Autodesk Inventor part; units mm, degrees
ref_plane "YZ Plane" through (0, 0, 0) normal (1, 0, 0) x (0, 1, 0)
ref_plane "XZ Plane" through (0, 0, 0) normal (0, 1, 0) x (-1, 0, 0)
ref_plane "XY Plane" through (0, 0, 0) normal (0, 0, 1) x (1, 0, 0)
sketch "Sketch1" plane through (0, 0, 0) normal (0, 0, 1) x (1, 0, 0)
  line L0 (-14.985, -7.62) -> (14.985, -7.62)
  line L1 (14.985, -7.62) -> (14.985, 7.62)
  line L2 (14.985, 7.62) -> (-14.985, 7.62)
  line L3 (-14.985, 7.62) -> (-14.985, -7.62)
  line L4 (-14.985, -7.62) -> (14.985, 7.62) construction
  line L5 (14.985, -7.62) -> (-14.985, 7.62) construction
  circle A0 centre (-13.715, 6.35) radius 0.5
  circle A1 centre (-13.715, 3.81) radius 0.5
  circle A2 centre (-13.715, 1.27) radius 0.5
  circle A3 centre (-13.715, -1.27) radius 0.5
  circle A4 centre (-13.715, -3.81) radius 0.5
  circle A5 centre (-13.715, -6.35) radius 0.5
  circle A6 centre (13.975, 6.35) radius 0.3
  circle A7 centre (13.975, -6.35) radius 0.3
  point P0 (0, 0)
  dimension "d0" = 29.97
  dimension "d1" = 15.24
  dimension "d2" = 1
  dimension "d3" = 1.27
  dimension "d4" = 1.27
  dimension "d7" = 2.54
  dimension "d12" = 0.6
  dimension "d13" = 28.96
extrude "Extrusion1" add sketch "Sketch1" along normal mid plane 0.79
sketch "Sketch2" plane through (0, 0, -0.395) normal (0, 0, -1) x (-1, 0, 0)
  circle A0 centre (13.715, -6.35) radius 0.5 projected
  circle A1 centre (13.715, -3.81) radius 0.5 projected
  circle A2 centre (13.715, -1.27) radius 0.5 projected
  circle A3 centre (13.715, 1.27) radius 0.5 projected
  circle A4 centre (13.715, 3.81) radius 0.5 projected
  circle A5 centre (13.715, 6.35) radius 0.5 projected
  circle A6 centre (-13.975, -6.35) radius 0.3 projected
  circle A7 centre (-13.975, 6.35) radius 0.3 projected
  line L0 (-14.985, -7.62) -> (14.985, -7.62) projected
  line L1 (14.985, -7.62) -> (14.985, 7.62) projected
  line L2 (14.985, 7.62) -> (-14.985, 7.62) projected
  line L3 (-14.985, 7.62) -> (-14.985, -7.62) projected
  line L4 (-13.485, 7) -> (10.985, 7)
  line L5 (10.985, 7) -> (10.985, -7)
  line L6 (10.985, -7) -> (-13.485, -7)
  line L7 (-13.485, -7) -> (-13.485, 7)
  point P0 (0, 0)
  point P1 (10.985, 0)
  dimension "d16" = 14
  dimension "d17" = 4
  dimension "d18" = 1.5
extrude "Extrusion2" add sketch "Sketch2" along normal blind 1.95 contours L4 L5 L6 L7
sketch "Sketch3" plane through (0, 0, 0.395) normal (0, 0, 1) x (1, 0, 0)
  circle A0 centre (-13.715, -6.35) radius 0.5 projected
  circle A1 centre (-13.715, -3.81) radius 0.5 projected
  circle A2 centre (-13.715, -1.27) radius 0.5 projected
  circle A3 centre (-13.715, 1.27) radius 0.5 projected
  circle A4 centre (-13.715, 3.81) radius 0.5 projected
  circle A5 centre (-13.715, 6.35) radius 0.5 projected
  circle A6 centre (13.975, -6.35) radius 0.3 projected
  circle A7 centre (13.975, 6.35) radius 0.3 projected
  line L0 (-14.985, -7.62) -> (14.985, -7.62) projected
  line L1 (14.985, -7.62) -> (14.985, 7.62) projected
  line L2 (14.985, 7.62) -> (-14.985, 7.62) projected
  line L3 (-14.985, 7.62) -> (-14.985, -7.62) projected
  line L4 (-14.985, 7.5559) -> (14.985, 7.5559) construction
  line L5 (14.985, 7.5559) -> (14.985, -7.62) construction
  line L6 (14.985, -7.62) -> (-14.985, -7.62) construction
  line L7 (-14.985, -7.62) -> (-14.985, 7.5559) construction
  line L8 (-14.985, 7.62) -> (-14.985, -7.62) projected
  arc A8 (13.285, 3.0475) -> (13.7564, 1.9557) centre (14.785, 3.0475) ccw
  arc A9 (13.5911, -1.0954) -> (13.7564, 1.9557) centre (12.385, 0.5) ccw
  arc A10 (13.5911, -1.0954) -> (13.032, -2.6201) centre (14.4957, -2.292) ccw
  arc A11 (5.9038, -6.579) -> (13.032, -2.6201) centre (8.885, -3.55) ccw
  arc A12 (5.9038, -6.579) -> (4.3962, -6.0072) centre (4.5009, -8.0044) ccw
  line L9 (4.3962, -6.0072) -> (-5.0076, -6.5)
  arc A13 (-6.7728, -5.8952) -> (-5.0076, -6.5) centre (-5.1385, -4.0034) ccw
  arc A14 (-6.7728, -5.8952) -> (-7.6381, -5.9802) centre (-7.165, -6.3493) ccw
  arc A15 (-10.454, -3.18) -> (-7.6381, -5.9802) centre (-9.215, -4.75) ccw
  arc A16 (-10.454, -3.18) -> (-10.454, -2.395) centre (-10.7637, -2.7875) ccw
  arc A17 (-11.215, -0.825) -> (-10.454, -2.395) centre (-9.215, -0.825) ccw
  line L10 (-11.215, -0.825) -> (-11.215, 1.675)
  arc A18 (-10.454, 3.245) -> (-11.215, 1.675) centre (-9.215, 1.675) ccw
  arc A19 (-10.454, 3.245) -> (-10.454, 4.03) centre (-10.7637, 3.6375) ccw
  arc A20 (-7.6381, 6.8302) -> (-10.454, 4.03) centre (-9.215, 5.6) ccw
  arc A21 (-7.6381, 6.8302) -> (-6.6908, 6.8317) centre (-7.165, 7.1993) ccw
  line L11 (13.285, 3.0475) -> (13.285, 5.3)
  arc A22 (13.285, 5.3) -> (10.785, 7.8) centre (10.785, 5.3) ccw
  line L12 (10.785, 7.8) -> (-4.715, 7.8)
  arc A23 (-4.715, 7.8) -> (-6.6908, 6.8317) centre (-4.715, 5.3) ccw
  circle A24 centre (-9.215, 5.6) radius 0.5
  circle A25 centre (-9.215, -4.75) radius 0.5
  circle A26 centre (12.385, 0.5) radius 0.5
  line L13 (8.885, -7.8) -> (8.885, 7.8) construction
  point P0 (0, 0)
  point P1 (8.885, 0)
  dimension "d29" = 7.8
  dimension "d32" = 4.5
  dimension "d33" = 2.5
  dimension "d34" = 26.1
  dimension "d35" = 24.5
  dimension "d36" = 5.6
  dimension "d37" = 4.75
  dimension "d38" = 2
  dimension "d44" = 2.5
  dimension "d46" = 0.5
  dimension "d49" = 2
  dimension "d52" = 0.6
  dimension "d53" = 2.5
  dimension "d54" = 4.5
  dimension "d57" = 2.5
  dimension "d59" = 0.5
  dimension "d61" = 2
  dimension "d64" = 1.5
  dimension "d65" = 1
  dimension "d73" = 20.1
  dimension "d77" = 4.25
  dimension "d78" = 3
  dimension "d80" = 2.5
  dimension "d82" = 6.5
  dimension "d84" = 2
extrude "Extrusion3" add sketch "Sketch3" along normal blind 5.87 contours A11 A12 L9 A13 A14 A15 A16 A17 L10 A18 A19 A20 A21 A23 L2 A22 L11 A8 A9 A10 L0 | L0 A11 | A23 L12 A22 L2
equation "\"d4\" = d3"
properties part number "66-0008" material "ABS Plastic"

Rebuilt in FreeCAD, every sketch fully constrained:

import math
import FreeCAD as App
import Part
import Sketcher
Q = App.Units.Quantity

doc = App.newDocument("Part")
params = doc.addObject("Spreadsheet::Sheet", "Params")
for row, (alias, value) in enumerate([
    ("sketch1_diameter", "1 mm"),
    ("sketch1_diameter2", "0.6 mm"),
    ("sketch1_width", "29.97 mm"),
    ("sketch1_height", "15.24 mm"),
    ("pad1_length", "0.79 mm"),
    ("sketch2_height", "14 mm"),
    ("sketch2_width", "24.47 mm"),
    ("pad2_length", "1.95 mm"),
    ("sketch3_diameter", "1 mm"),
    ("sketch3_radius", "2 mm"),
    ("sketch3_radius2", "1.5 mm"),
    ("sketch3_radius3", "2.5 mm"),
    ("sketch3_radius4", "0.6 mm"),
    ("pad3_length", "5.87 mm"),
], start=1):
    params.set(f"A{row}", alias)
    params.set(f"B{row}", "=" + value)
    params.setAlias(f"B{row}", alias)

body = doc.addObject("PartDesign::Body", "Body")

# Sketch on XY plane
sketch1 = body.newObject("Sketcher::SketchObject", "Sketch")
sketch1.AttachmentSupport = (doc.getObject("XY_Plane"), [""])
sketch1.MapMode = "FlatFace"
sketch1.addGeometry([
    Part.LineSegment(App.Vector(-14.985, 7.62, 0), App.Vector(-14.985, -7.62, 0)),  # 0
    Part.LineSegment(App.Vector(-14.985, -7.62, 0), App.Vector(14.985, -7.62, 0)),  # 1
    Part.LineSegment(App.Vector(14.985, -7.62, 0), App.Vector(14.985, 7.62, 0)),  # 2
    Part.LineSegment(App.Vector(14.985, 7.62, 0), App.Vector(-14.985, 7.62, 0)),  # 3
    Part.Circle(App.Vector(-13.715, -6.35, 0), App.Vector(0, 0, 1), 0.5),  # 4
    Part.Circle(App.Vector(-13.715, -3.81, 0), App.Vector(0, 0, 1), 0.5),  # 5
    Part.Circle(App.Vector(-13.715, -1.27, 0), App.Vector(0, 0, 1), 0.5),  # 6
    Part.Circle(App.Vector(13.975, -6.35, 0), App.Vector(0, 0, 1), 0.3),  # 7
    Part.Circle(App.Vector(-13.715, 1.27, 0), App.Vector(0, 0, 1), 0.5),  # 8
    Part.Circle(App.Vector(-13.715, 3.81, 0), App.Vector(0, 0, 1), 0.5),  # 9
    Part.Circle(App.Vector(-13.715, 6.35, 0), App.Vector(0, 0, 1), 0.5),  # 10
    Part.Circle(App.Vector(13.975, 6.35, 0), App.Vector(0, 0, 1), 0.3),  # 11
], False)
sketch1.addConstraint([
    Sketcher.Constraint("Coincident", 0, 2, 1, 1),
    Sketcher.Constraint("Coincident", 1, 2, 2, 1),
    Sketcher.Constraint("Coincident", 2, 2, 3, 1),
    Sketcher.Constraint("Coincident", 3, 2, 0, 1),
    Sketcher.Constraint("Vertical", 0),
    Sketcher.Constraint("Horizontal", 1),
    Sketcher.Constraint("Vertical", 2),
    Sketcher.Constraint("Horizontal", 3),
    Sketcher.Constraint("Equal", 4, 5),
    Sketcher.Constraint("Equal", 5, 6),
    Sketcher.Constraint("Equal", 6, 8),
    Sketcher.Constraint("Equal", 8, 9),
    Sketcher.Constraint("Equal", 9, 10),
    Sketcher.Constraint("Equal", 7, 11),
    Sketcher.Constraint("Symmetric", 0, 2, 2, 2, -1, 1),
    Sketcher.Constraint("Symmetric", 6, 3, 8, 3, -1),
    Sketcher.Constraint("Symmetric", 5, 3, 9, 3, -1),
    Sketcher.Constraint("Symmetric", 4, 3, 10, 3, -1),
    Sketcher.Constraint("Symmetric", 7, 3, 11, 3, -1),
    Sketcher.Constraint("Horizontal", 4, 3, 7, 3),
    Sketcher.Constraint("Vertical", 4, 3, 5, 3),
    Sketcher.Constraint("Vertical", 5, 3, 6, 3),
    Sketcher.Constraint("Diameter", 4, 1.0),
    Sketcher.Constraint("Diameter", 7, 0.6),
    Sketcher.Constraint("DistanceX", 1, 1, 1, 2, 29.97),
    Sketcher.Constraint("DistanceY", 0, 2, 0, 1, 15.24),
    Sketcher.Constraint("DistanceY", 6, 3, -1, 1, 1.27),
    Sketcher.Constraint("DistanceY", 4, 3, 5, 3, 2.54),
    Sketcher.Constraint("DistanceY", 5, 3, 6, 3, 2.54),
    Sketcher.Constraint("DistanceX", 0, 2, 4, 3, 1.27),
    Sketcher.Constraint("DistanceX", 4, 3, 7, 3, 27.69),
])
sketch1.setExpression("Constraints[22]", "Params.sketch1_diameter")
sketch1.setExpression("Constraints[23]", "Params.sketch1_diameter2")
sketch1.setExpression("Constraints[24]", "Params.sketch1_width")
sketch1.setExpression("Constraints[25]", "Params.sketch1_height")
pad1 = body.newObject("PartDesign::Pad", "Pad")
pad1.Profile = sketch1
pad1.setExpression("Length", "Params.pad1_length")
pad1.Midplane = True

# Sketch on XY plane
sketch2 = body.newObject("Sketcher::SketchObject", "Sketch001")
sketch2.AttachmentSupport = (doc.getObject("XY_Plane"), [""])
sketch2.MapMode = "FlatFace"
sketch2.AttachmentOffset = App.Placement(App.Vector(0, 0, -0.395), App.Rotation())
sketch2.addGeometry([
    Part.LineSegment(App.Vector(-10.985, 7, 0), App.Vector(13.485, 7, 0)),
    Part.LineSegment(App.Vector(13.485, 7, 0), App.Vector(13.485, -7, 0)),
    Part.LineSegment(App.Vector(13.485, -7, 0), App.Vector(-10.985, -7, 0)),
    Part.LineSegment(App.Vector(-10.985, -7, 0), App.Vector(-10.985, 7, 0)),
], False)
sketch2.addConstraint([
    Sketcher.Constraint("Coincident", 0, 2, 1, 1),
    Sketcher.Constraint("Coincident", 1, 2, 2, 1),
    Sketcher.Constraint("Coincident", 2, 2, 3, 1),
    Sketcher.Constraint("Coincident", 3, 2, 0, 1),
    Sketcher.Constraint("Horizontal", 0),
    Sketcher.Constraint("Vertical", 1),
    Sketcher.Constraint("Horizontal", 2),
    Sketcher.Constraint("Vertical", 3),
    Sketcher.Constraint("DistanceY", 1, 2, 1, 1, 14.0),
    Sketcher.Constraint("DistanceY", -1, 1, 0, 2, 7.0),
    Sketcher.Constraint("DistanceX", 0, 1, 0, 2, 24.47),
    Sketcher.Constraint("DistanceX", -1, 1, 0, 2, 13.485),
])
sketch2.setExpression("Constraints[8]", "Params.sketch2_height")
sketch2.setExpression("Constraints[10]", "Params.sketch2_width")
pad2 = body.newObject("PartDesign::Pad", "Pad001")
pad2.Profile = sketch2
pad2.setExpression("Length", "Params.pad2_length")
pad2.Reversed = True

# Sketch on XY plane
sketch3 = body.newObject("Sketcher::SketchObject", "Sketch002")
sketch3.AttachmentSupport = (doc.getObject("XY_Plane"), [""])
sketch3.MapMode = "FlatFace"
sketch3.AttachmentOffset = App.Placement(App.Vector(0, 0, 0.395), App.Rotation())
sketch3.addGeometry([
    Part.ArcOfCircle(Part.Circle(App.Vector(8.885, -3.55, 0), App.Vector(0, 0, 1), 4.249988), math.radians(-134.544328), math.radians(12.638624)),  # 0
    Part.ArcOfCircle(Part.Circle(App.Vector(14.4957, -2.292, 0), App.Vector(0, 0, 1), 1.500051), math.radians(127.088379), math.radians(192.634454)),  # 1
    Part.ArcOfCircle(Part.Circle(App.Vector(12.385, 0.5, 0), App.Vector(0, 0, 1), 1.999995), math.radians(-52.911231), math.radians(46.707971)),  # 2
    Part.ArcOfCircle(Part.Circle(App.Vector(14.785, 3.0475, 0), App.Vector(0, 0, 1), 1.5), math.radians(180), math.radians(226.707235)),  # 3
    Part.LineSegment(App.Vector(13.285, 3.0475, 0), App.Vector(13.285, 5.3, 0)),  # 4
    Part.ArcOfCircle(Part.Circle(App.Vector(10.785, 5.3, 0), App.Vector(0, 0, 1), 2.5), math.radians(0), math.radians(90)),  # 5
    Part.LineSegment(App.Vector(10.785, 7.8, 0), App.Vector(-4.715, 7.8, 0)),  # 6
    Part.ArcOfCircle(Part.Circle(App.Vector(-4.715, 5.3, 0), App.Vector(0, 0, 1), 2.5), math.radians(90), math.radians(142.216073)),  # 7
    Part.ArcOfCircle(Part.Circle(App.Vector(-7.165, 7.1993, 0), App.Vector(0, 0, 1), 0.600049), math.radians(-142.039595), math.radians(-37.782855)),  # 8
    Part.ArcOfCircle(Part.Circle(App.Vector(-9.215, 5.6, 0), App.Vector(0, 0, 1), 2.000001), math.radians(37.959155), math.radians(231.720488)),  # 9
    Part.ArcOfCircle(Part.Circle(App.Vector(-10.7637, 3.6375, 0), App.Vector(0, 0, 1), 0.49997), math.radians(-51.724986), math.radians(51.724986)),  # 10
    Part.ArcOfCircle(Part.Circle(App.Vector(-9.215, 1.675, 0), App.Vector(0, 0, 1), 2.000005), math.radians(128.279512), math.radians(180)),  # 11
    Part.LineSegment(App.Vector(-11.215, 1.675, 0), App.Vector(-11.215, -0.825, 0)),  # 12
    Part.ArcOfCircle(Part.Circle(App.Vector(-9.215, -0.825, 0), App.Vector(0, 0, 1), 2), math.radians(180), math.radians(231.720488)),  # 13
    Part.ArcOfCircle(Part.Circle(App.Vector(-10.7637, -2.7875, 0), App.Vector(0, 0, 1), 0.49997), math.radians(-51.724986), math.radians(51.724986)),  # 14
    Part.ArcOfCircle(Part.Circle(App.Vector(-9.215, -4.75, 0), App.Vector(0, 0, 1), 2.000005), math.radians(128.279512), math.radians(322.040845)),  # 15
    Part.ArcOfCircle(Part.Circle(App.Vector(-7.165, -6.3493, 0), App.Vector(0, 0, 1), 0.600023), math.radians(49.183274), math.radians(142.039595)),  # 16
    Part.ArcOfCircle(Part.Circle(App.Vector(-5.1385, -4.0034, 0), App.Vector(0, 0, 1), 2.499969), math.radians(-130.823283), math.radians(-86.998656)),  # 17
    Part.LineSegment(App.Vector(-5.0076, -6.5, 0), App.Vector(4.3962, -6.0072, 0)),  # 18
    Part.ArcOfCircle(Part.Circle(App.Vector(4.5009, -8.0044, 0), App.Vector(0, 0, 1), 1.999973), math.radians(45.455796), math.radians(93.000892)),  # 19
    Part.Circle(App.Vector(-9.215, -4.75, 0), App.Vector(0, 0, 1), 0.5),  # 20
    Part.Circle(App.Vector(-9.215, 5.6, 0), App.Vector(0, 0, 1), 0.5),  # 21
    Part.Circle(App.Vector(12.385, 0.5, 0), App.Vector(0, 0, 1), 0.5),  # 22
], False)
sketch3.addConstraint([
    Sketcher.Constraint("Tangent", 0, 2, 1, 2),
    Sketcher.Constraint("Tangent", 1, 1, 2, 1),
    Sketcher.Constraint("Tangent", 2, 2, 3, 2),
    Sketcher.Constraint("Tangent", 3, 1, 4, 1),
    Sketcher.Constraint("Tangent", 4, 2, 5, 1),
    Sketcher.Constraint("Tangent", 5, 2, 6, 1),
    Sketcher.Constraint("Tangent", 6, 2, 7, 1),
    Sketcher.Constraint("Tangent", 7, 2, 8, 2),
    Sketcher.Constraint("Tangent", 8, 1, 9, 1),
    Sketcher.Constraint("Tangent", 9, 2, 10, 2),
    Sketcher.Constraint("Tangent", 10, 1, 11, 1),
    Sketcher.Constraint("Tangent", 11, 2, 12, 1),
    Sketcher.Constraint("Tangent", 12, 2, 13, 1),
    Sketcher.Constraint("Tangent", 13, 2, 14, 2),
    Sketcher.Constraint("Tangent", 14, 1, 15, 1),
    Sketcher.Constraint("Tangent", 15, 2, 16, 2),
    Sketcher.Constraint("Tangent", 16, 1, 17, 1),
    Sketcher.Constraint("Tangent", 17, 2, 18, 1),
    Sketcher.Constraint("Tangent", 18, 2, 19, 2),
    Sketcher.Constraint("Tangent", 19, 1, 0, 1),
    Sketcher.Constraint("Vertical", 4),
    Sketcher.Constraint("Horizontal", 6),
    Sketcher.Constraint("Vertical", 12),
    Sketcher.Constraint("Coincident", 20, 3, 15, 3),
    Sketcher.Constraint("Coincident", 21, 3, 9, 3),
    Sketcher.Constraint("Coincident", 22, 3, 2, 3),
    Sketcher.Constraint("Equal", 1, 3),
    Sketcher.Constraint("Equal", 5, 7),
    Sketcher.Constraint("Equal", 2, 9),
    Sketcher.Constraint("Equal", 9, 11),
    Sketcher.Constraint("Equal", 11, 13),
    Sketcher.Constraint("Equal", 10, 14),
    Sketcher.Constraint("Equal", 13, 15),
    Sketcher.Constraint("Equal", 8, 16),
    Sketcher.Constraint("Equal", 7, 17),
    Sketcher.Constraint("Equal", 15, 19),
    Sketcher.Constraint("Equal", 14, 20),
    Sketcher.Constraint("Equal", 20, 21),
    Sketcher.Constraint("Equal", 21, 22),
    Sketcher.Constraint("Vertical", 9, 3, 11, 3),
    Sketcher.Constraint("Vertical", 10, 3, 14, 3),
    Sketcher.Constraint("Vertical", 13, 3, 15, 3),
    Sketcher.Constraint("Vertical", 8, 3, 16, 3),
    Sketcher.Constraint("Diameter", 20, 1.0),
    Sketcher.Constraint("Radius", 2, 2.0),
    Sketcher.Constraint("Radius", 1, 1.5),
    Sketcher.Constraint("Radius", 5, 2.5),
    Sketcher.Constraint("Radius", 8, 0.6),
    Sketcher.Constraint("Angle", 18, Q("2.9998 deg")),
    Sketcher.Constraint("Radius", 0, 4.25),
    Sketcher.Constraint("DistanceY", 12, 2, 12, 1, 2.5),
    Sketcher.Constraint("DistanceY", -1, 1, 2, 3, 0.5),
    Sketcher.Constraint("DistanceY", -1, 1, 9, 3, 5.6),
    Sketcher.Constraint("DistanceY", -1, 1, 5, 2, 7.8),
    Sketcher.Constraint("DistanceY", 17, 2, -1, 1, 6.5),
    Sketcher.Constraint("DistanceX", 9, 3, 7, 3, 4.5),
    Sketcher.Constraint("DistanceY", 15, 3, -1, 1, 4.75),
    Sketcher.Constraint("DistanceX", 6, 2, 6, 1, 15.5),
    Sketcher.Constraint("DistanceX", 0, 3, 2, 3, 3.5),
    Sketcher.Constraint("DistanceX", 2, 3, 3, 3, 2.4),
    Sketcher.Constraint("DistanceY", 0, 3, -1, 1, 3.55),
    Sketcher.Constraint("DistanceX", -1, 1, 0, 3, 8.885),
])
sketch3.setExpression("Constraints[43]", "Params.sketch3_diameter")
sketch3.setExpression("Constraints[44]", "Params.sketch3_radius")
sketch3.setExpression("Constraints[45]", "Params.sketch3_radius2")
sketch3.setExpression("Constraints[46]", "Params.sketch3_radius3")
sketch3.setExpression("Constraints[47]", "Params.sketch3_radius4")
pad3 = body.newObject("PartDesign::Pad", "Pad002")
pad3.Profile = sketch3
pad3.setExpression("Length", "Params.pad3_length")

doc.recompute()
